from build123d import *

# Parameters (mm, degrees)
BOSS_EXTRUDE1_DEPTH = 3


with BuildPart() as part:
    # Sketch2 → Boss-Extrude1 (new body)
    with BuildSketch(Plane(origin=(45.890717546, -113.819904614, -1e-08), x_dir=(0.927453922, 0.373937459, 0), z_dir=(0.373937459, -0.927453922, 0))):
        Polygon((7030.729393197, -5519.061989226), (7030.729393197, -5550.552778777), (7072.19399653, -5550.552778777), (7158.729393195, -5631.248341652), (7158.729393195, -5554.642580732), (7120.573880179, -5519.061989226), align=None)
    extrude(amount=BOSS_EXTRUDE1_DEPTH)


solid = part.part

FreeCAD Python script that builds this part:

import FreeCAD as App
import Part
import Sketcher
Q = App.Units.Quantity


def add_polygon(sketch, points):
    """Adds a closed chain of lines whose ends are joined by coincident constraints."""
    first, n = sketch.GeometryCount, len(points)
    for a, b in zip(points, points[1:] + points[:1]):
        sketch.addGeometry(Part.LineSegment(App.Vector(*a, 0), App.Vector(*b, 0)), False)
    for i in range(n):
        sketch.addConstraint(Sketcher.Constraint("Coincident", first + i, 2, first + (i + 1) % n, 1))

doc = App.newDocument("Part")
params = doc.addObject("Spreadsheet::Sheet", "Params")
for row, (alias, value) in enumerate([
    ("pad1_length", "3 mm"),
], start=1):
    params.set(f"A{row}", alias)
    params.set(f"B{row}", "=" + value)
    params.setAlias(f"B{row}", alias)

body = doc.addObject("PartDesign::Body", "Body")

# Sketch on an angled plane
sketch1 = body.newObject("Sketcher::SketchObject", "Sketch")
sketch1.Placement = App.Placement(App.Vector(45.890718, -113.819905, 0), App.Rotation(App.Vector(0.927453922, 0.373937459, 0), App.Vector(0, 0, 1.000000001), App.Vector(0.373937459, -0.927453922, 0), "ZXY"))
add_polygon(sketch1, [(7031, -5519), (7031, -5551), (7072, -5551), (7159, -5631), (7159, -5555), (7121, -5519)])  # lines 0-5
sketch1.addConstraint([
    Sketcher.Constraint("Vertical", 0),
    Sketcher.Constraint("Horizontal", 1),
    Sketcher.Constraint("Vertical", 3),
    Sketcher.Constraint("Horizontal", 5),
    Sketcher.Constraint("Parallel", 2, 4),
    Sketcher.Constraint("Angle", 2, Q("-43 deg")),
    Sketcher.Constraint("DistanceX", 0, 2, 2, 2, 128.0),
    Sketcher.Constraint("DistanceX", -1, 1, 1, 2, 7072.194001),
    Sketcher.Constraint("DistanceY", 0, 2, 0, 1, 31.49079),
    Sketcher.Constraint("DistanceY", 3, 1, 3, 2, 76.605761),
    Sketcher.Constraint("DistanceX", -1, 1, 2, 2, 7158.729398),
    Sketcher.Constraint("DistanceY", 2, 2, -1, 1, 5631.248349),
])
pad1 = body.newObject("PartDesign::Pad", "Pad")
pad1.Profile = sketch1
pad1.setExpression("Length", "Params.pad1_length")

doc.recompute()
